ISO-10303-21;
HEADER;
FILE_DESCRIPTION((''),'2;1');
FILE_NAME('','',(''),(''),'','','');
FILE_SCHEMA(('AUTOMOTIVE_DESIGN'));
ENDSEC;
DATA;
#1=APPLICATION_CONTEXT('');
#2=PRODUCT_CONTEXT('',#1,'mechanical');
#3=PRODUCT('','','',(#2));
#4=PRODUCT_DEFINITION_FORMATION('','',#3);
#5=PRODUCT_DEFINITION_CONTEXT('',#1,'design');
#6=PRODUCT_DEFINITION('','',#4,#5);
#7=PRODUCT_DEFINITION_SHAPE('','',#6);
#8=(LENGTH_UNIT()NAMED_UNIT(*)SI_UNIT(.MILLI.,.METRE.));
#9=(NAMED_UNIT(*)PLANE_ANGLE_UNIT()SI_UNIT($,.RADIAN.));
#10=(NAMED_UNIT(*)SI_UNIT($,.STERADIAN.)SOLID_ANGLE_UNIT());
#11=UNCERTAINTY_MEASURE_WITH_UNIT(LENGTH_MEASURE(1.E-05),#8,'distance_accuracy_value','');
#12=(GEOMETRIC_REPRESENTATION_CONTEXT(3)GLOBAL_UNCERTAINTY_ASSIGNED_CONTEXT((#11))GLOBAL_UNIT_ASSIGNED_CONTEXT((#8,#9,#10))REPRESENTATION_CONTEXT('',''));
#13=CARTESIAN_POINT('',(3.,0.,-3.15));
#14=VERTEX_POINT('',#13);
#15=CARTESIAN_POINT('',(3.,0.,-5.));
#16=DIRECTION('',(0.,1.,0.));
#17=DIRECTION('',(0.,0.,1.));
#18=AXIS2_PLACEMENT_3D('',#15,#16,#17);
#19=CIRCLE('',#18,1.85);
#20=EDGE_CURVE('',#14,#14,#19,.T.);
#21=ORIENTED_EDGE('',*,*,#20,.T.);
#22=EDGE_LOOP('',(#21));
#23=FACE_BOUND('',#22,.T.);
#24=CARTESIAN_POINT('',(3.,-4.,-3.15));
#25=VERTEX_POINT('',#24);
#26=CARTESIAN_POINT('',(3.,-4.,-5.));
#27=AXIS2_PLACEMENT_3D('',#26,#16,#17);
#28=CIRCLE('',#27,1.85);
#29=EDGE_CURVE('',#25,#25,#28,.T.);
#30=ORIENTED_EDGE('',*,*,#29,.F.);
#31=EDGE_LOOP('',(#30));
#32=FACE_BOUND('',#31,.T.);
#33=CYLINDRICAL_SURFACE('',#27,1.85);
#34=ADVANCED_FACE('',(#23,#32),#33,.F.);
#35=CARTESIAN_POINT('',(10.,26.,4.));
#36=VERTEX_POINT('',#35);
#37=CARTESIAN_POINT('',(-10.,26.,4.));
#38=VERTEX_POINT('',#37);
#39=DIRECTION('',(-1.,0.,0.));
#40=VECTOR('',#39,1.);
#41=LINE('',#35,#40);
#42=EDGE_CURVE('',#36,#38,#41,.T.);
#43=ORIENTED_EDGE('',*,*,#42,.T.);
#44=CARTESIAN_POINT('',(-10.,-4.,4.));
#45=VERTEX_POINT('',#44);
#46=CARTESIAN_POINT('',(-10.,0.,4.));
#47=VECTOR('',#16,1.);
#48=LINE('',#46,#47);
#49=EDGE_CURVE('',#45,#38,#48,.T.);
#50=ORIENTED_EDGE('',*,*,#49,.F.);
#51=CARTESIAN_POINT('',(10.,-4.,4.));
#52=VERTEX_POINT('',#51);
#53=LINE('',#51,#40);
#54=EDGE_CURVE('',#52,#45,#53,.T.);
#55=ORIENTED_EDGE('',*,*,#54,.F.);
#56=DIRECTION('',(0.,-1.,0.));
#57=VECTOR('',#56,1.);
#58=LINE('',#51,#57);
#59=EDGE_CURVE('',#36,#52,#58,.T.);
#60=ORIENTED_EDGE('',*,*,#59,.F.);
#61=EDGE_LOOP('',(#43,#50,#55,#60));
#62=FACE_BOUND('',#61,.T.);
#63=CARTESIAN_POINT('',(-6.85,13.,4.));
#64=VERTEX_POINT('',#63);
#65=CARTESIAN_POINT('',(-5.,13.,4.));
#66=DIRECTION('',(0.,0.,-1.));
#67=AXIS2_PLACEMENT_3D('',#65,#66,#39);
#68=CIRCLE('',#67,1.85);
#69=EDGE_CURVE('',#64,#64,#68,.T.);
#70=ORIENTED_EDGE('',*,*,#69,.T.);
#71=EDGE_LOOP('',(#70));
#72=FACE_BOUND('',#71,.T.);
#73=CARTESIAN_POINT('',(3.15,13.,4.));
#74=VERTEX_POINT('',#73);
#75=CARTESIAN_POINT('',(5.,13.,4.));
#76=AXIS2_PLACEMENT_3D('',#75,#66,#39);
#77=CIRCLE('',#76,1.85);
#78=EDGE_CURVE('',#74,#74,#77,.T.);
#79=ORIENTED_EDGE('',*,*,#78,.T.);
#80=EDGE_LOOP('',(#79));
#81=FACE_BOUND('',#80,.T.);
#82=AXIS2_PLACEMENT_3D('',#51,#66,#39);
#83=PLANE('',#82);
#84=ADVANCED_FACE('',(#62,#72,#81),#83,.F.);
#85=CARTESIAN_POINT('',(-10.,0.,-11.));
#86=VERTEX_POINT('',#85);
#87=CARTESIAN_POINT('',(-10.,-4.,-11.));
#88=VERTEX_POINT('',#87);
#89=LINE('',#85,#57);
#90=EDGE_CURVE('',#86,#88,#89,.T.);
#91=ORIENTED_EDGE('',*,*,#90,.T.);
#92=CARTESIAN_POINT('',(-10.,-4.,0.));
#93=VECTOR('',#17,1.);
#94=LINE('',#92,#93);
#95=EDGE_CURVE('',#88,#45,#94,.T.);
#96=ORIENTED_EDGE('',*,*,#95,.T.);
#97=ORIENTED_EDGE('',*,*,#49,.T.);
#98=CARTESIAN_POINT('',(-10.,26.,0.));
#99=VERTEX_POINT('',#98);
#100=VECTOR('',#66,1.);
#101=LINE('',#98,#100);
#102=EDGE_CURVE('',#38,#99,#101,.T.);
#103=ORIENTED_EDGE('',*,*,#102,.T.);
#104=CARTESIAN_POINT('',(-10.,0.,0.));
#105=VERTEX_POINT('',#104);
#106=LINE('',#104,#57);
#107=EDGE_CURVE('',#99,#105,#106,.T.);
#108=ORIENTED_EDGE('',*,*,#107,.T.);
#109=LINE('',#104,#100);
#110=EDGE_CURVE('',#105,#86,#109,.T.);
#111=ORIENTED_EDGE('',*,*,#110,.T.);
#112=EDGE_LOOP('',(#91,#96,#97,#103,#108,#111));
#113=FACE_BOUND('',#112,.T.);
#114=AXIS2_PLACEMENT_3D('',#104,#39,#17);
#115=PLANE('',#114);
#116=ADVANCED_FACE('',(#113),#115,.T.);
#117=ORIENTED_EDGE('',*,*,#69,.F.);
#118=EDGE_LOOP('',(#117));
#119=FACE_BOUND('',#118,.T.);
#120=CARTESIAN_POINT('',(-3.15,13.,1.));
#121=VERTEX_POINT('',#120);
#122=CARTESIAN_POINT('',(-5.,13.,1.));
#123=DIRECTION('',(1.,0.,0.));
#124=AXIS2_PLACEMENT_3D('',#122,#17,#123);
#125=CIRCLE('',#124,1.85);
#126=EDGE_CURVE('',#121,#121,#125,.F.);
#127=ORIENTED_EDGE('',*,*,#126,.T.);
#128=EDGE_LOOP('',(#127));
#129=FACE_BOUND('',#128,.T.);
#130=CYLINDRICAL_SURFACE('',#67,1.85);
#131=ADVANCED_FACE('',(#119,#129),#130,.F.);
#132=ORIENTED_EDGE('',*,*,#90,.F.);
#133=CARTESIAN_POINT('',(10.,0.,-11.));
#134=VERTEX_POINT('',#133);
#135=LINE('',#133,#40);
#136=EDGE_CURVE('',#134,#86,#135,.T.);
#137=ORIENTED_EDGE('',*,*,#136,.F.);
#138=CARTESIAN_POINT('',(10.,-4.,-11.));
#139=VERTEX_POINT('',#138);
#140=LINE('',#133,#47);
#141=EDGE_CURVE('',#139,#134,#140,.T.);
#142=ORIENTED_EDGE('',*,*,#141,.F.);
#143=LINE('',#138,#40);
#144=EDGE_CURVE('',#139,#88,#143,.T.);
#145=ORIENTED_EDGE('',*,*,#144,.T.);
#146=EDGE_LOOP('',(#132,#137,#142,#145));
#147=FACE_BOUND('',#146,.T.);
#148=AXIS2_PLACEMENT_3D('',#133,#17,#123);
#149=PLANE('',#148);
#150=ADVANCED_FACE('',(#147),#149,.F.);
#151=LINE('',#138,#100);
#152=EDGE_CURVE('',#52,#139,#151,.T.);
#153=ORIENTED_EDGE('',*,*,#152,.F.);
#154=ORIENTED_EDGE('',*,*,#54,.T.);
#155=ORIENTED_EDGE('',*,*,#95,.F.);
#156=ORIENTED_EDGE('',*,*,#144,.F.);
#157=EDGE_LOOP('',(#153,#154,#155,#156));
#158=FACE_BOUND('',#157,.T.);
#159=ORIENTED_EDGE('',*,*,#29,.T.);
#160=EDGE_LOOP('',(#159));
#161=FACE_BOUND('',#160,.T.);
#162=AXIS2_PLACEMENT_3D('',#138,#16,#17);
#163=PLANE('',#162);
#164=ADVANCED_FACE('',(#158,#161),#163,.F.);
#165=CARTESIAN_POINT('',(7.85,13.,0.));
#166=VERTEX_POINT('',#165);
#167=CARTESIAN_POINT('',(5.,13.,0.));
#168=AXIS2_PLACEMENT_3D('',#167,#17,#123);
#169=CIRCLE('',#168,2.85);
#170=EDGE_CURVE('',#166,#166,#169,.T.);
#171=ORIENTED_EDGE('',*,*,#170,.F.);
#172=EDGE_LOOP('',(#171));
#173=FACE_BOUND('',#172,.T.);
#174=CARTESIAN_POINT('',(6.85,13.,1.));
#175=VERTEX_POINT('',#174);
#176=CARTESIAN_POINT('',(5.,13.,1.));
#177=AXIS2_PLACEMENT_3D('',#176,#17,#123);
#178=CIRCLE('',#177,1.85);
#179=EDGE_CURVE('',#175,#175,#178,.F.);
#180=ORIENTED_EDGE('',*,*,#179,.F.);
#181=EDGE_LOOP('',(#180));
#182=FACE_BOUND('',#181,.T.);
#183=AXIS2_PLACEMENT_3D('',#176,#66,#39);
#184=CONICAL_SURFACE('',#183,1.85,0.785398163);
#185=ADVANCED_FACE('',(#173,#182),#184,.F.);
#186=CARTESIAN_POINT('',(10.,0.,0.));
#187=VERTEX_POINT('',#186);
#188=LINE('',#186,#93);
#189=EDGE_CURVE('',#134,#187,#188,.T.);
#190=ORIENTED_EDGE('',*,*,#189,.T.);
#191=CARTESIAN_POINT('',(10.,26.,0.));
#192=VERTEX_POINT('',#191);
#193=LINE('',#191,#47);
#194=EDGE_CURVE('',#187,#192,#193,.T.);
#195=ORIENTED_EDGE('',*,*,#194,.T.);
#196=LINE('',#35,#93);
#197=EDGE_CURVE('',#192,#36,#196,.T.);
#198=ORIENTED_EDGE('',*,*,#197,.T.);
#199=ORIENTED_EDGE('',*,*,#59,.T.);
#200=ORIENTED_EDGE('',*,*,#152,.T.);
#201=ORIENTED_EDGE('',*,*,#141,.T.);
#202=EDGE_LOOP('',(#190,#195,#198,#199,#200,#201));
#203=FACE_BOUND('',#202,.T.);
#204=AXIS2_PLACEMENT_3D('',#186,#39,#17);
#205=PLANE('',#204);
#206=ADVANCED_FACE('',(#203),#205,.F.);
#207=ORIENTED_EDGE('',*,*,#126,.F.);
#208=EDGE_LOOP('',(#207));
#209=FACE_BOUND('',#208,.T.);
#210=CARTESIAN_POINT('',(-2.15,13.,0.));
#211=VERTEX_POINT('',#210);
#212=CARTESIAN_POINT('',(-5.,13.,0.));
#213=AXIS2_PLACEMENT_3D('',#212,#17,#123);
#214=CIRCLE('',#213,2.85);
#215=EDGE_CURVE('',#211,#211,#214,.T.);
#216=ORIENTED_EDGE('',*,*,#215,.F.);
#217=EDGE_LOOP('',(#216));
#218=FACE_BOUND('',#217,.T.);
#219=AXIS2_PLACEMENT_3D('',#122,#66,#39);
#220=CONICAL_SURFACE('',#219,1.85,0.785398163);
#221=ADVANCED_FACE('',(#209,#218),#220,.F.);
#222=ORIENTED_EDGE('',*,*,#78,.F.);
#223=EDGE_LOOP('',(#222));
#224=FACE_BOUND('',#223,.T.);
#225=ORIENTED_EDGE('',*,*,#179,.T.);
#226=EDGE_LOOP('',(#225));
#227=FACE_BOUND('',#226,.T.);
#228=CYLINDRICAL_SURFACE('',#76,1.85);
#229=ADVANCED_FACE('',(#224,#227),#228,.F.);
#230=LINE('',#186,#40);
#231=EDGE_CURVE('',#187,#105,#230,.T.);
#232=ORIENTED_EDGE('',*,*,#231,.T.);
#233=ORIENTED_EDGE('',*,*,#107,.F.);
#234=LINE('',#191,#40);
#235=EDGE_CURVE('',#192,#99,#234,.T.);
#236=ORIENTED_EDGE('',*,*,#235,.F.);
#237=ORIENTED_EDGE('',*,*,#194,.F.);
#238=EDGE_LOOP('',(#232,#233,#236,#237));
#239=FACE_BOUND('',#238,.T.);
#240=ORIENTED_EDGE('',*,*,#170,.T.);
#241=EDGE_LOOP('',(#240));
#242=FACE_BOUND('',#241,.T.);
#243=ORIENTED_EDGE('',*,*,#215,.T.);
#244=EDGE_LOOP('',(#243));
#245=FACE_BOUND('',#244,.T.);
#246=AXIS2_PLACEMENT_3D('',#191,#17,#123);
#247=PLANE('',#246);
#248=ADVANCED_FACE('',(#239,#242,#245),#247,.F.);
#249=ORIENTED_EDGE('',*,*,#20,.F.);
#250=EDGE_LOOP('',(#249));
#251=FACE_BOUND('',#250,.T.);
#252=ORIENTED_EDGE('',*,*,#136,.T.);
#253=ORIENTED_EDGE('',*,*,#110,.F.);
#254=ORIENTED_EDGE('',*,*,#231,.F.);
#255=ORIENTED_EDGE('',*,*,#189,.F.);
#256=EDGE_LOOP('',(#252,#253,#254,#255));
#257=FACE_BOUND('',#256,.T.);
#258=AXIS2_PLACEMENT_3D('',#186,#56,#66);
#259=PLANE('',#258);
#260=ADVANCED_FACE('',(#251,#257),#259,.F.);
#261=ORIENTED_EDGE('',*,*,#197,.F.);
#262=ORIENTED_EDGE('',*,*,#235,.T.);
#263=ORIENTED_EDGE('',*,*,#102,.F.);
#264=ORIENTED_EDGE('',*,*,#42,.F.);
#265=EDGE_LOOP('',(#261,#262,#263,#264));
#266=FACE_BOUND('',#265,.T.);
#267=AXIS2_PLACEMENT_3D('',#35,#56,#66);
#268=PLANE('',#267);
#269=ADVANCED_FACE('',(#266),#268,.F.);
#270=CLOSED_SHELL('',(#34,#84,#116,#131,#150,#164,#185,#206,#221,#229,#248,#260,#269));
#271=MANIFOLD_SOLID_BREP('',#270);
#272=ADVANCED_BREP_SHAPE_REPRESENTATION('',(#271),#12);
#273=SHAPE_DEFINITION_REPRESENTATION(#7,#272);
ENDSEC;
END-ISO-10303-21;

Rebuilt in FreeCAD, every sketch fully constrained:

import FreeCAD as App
import Part
import Sketcher
Q = App.Units.Quantity


def edges_at(feature, points):
    """Names of the edges that pass closest to the given points."""
    edges = feature.Shape.Edges
    near = lambda p: min(range(len(edges)), key=lambda i: edges[i].distToShape(Part.Vertex(*p))[0])
    return sorted({f"Edge{near(p) + 1}" for p in points})


def add_polygon(sketch, points):
    """Adds a closed chain of lines whose ends are joined by coincident constraints."""
    first, n = sketch.GeometryCount, len(points)
    for a, b in zip(points, points[1:] + points[:1]):
        sketch.addGeometry(Part.LineSegment(App.Vector(*a, 0), App.Vector(*b, 0)), False)
    for i in range(n):
        sketch.addConstraint(Sketcher.Constraint("Coincident", first + i, 2, first + (i + 1) % n, 1))

doc = App.newDocument("Part")
body = doc.addObject("PartDesign::Body", "Body")

# Sketch on YZ plane
sketch1 = doc.addObject("Sketcher::SketchObject", "Sketch")
body.addObject(sketch1)
sketch1.AttachmentSupport = (doc.YZ_Plane, [""])
sketch1.MapMode = "FlatFace"
add_polygon(sketch1, [(26, 0), (26, 4), (-4, 4), (-4, -11), (0, -11), (0, 0)])  # lines 0-5
sketch1.addConstraint(Sketcher.Constraint("Vertical", 0))
sketch1.addConstraint(Sketcher.Constraint("Horizontal", 1))
sketch1.addConstraint(Sketcher.Constraint("Vertical", 2))
sketch1.addConstraint(Sketcher.Constraint("Horizontal", 3))
sketch1.addConstraint(Sketcher.Constraint("Vertical", 4))
sketch1.addConstraint(Sketcher.Constraint("Horizontal", 5))
sketch1.addConstraint(Sketcher.Constraint("Coincident", 4, 2, -1, 1))
sketch1.addConstraint(Sketcher.Constraint("Equal", 3, 0))
sketch1.addConstraint(Sketcher.Constraint("DistanceX", 1, 2, 1, 1, Q("30 mm")))
sketch1.addConstraint(Sketcher.Constraint("DistanceX", 3, 1, 3, 2, Q("4 mm")))
sketch1.addConstraint(Sketcher.Constraint("DistanceY", 2, 2, 2, 1, Q("15 mm")))
pad1 = doc.addObject("PartDesign::Pad", "Pad")
body.addObject(pad1)
pad1.Profile = sketch1
pad1.Length = 10

# Sketch on XZ plane
sketch2 = doc.addObject("Sketcher::SketchObject", "Sketch001")
body.addObject(sketch2)
sketch2.AttachmentSupport = (doc.XZ_Plane, [""])
sketch2.MapMode = "FlatFace"
sketch2.addGeometry(Part.Circle(App.Vector(3, -5, 0), App.Vector(0, 0, 1), 1.85), False)
sketch2.addConstraint(Sketcher.Constraint("Diameter", 0, Q("3.7 mm")))
sketch2.addConstraint(Sketcher.Constraint("DistanceX", -1, 1, 0, 3, Q("3 mm")))
sketch2.addConstraint(Sketcher.Constraint("DistanceY", 0, 3, -1, 1, Q("5 mm")))
pocket1 = doc.addObject("PartDesign::Pocket", "Pocket")
body.addObject(pocket1)
pocket1.Profile = sketch2
pocket1.Type = "ThroughAll"
pocket1.Reversed = True

# Sketch on YZ plane
sketch3 = doc.addObject("Sketcher::SketchObject", "Sketch002")
body.addObject(sketch3)
sketch3.AttachmentSupport = (doc.YZ_Plane, [""])
sketch3.MapMode = "FlatFace"
add_polygon(sketch3, [(-4, -11), (-4, 4), (26, 4), (26, 0), (0, 0), (0, -11)])  # lines 0-5
sketch3.addConstraint(Sketcher.Constraint("Vertical", 0))
sketch3.addConstraint(Sketcher.Constraint("Horizontal", 1))
sketch3.addConstraint(Sketcher.Constraint("Vertical", 2))
sketch3.addConstraint(Sketcher.Constraint("Horizontal", 3))
sketch3.addConstraint(Sketcher.Constraint("Vertical", 4))
sketch3.addConstraint(Sketcher.Constraint("Horizontal", 5))
sketch3.addConstraint(Sketcher.Constraint("Coincident", 3, 2, -1, 1))
sketch3.addConstraint(Sketcher.Constraint("Equal", 5, 2))
sketch3.addConstraint(Sketcher.Constraint("DistanceX", 1, 1, 1, 2, Q("30 mm")))
sketch3.addConstraint(Sketcher.Constraint("DistanceX", 3, 2, 3, 1, Q("26 mm")))
sketch3.addConstraint(Sketcher.Constraint("DistanceY", 0, 1, 0, 2, Q("15 mm")))
pad2 = doc.addObject("PartDesign::Pad", "Pad001")
body.addObject(pad2)
pad2.Profile = sketch3
pad2.Length = 10
pad2.Reversed = True

# Sketch on XY plane
sketch4 = doc.addObject("Sketcher::SketchObject", "Sketch003")
body.addObject(sketch4)
sketch4.AttachmentSupport = (doc.XY_Plane, [""])
sketch4.MapMode = "FlatFace"
sketch4.addGeometry(Part.Circle(App.Vector(5, 13, 0), App.Vector(0, 0, 1), 1.85), False)
sketch4.addGeometry(Part.Circle(App.Vector(-5, 13, 0), App.Vector(0, 0, 1), 1.85), False)
sketch4.addConstraint(Sketcher.Constraint("Equal", 0, 1))
sketch4.addConstraint(Sketcher.Constraint("Symmetric", 0, 3, 1, 3, -2))
sketch4.addConstraint(Sketcher.Constraint("Diameter", 0, Q("3.7 mm")))
sketch4.addConstraint(Sketcher.Constraint("DistanceX", -1, 1, 0, 3, Q("5 mm")))
sketch4.addConstraint(Sketcher.Constraint("DistanceY", -1, 1, 0, 3, Q("13 mm")))
pocket2 = doc.addObject("PartDesign::Pocket", "Pocket001")
body.addObject(pocket2)
pocket2.Profile = sketch4
pocket2.Type = "ThroughAll"
pocket2.Reversed = True
doc.recompute()

chamfer = doc.addObject("PartDesign::Chamfer", "Chamfer")
body.addObject(chamfer)
chamfer.Base = (pocket2, edges_at(pocket2, [(6.85, 13, 0), (-3.15, 13, 0)]))
chamfer.Size = 1

doc.recompute()
